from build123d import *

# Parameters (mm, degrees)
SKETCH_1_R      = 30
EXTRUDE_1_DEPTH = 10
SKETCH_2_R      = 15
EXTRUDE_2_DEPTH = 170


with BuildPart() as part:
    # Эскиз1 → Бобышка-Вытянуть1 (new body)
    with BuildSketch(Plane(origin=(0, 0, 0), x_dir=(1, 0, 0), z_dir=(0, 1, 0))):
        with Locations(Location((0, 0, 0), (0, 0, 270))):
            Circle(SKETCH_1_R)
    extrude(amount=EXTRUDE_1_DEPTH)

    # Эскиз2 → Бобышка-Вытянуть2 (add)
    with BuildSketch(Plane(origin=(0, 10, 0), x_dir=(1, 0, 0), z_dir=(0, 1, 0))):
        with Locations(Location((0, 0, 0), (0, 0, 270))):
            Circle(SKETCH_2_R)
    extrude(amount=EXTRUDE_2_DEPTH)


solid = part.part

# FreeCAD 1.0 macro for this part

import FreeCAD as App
import Part
import Sketcher
from FreeCAD import Vector
Q = App.Units.Quantity

doc = App.newDocument("Part")
body = doc.addObject("PartDesign::Body", "Body")

# Sketch on XZ plane
sketch1 = doc.addObject("Sketcher::SketchObject", "Sketch")
body.addObject(sketch1)
sketch1.AttachmentSupport = (doc.XZ_Plane, [""])
sketch1.MapMode = "FlatFace"
sketch1.addGeometry(Part.Circle(Vector(0, 0, 0), Vector(0, 0, 1), 30), False)
sketch1.addConstraint(Sketcher.Constraint("Coincident", 0, 3, -1, 1))
sketch1.addConstraint(Sketcher.Constraint("Diameter", 0, Q("60 mm")))
pad1 = doc.addObject("PartDesign::Pad", "Pad")
body.addObject(pad1)
pad1.Profile = sketch1
pad1.Length = 10
pad1.Reversed = True

# Sketch on XZ plane
sketch2 = doc.addObject("Sketcher::SketchObject", "Sketch001")
body.addObject(sketch2)
sketch2.AttachmentSupport = (doc.XZ_Plane, [""])
sketch2.MapMode = "FlatFace"
sketch2.AttachmentOffset = App.Placement(Vector(0, 0, -10), App.Rotation())
sketch2.addGeometry(Part.Circle(Vector(0, 0, 0), Vector(0, 0, 1), 15), False)
sketch2.addConstraint(Sketcher.Constraint("Coincident", 0, 3, -1, 1))
sketch2.addConstraint(Sketcher.Constraint("Diameter", 0, Q("30 mm")))
pad2 = doc.addObject("PartDesign::Pad", "Pad001")
body.addObject(pad2)
pad2.Profile = sketch2
pad2.Length = 170
pad2.Reversed = True

doc.recompute()
